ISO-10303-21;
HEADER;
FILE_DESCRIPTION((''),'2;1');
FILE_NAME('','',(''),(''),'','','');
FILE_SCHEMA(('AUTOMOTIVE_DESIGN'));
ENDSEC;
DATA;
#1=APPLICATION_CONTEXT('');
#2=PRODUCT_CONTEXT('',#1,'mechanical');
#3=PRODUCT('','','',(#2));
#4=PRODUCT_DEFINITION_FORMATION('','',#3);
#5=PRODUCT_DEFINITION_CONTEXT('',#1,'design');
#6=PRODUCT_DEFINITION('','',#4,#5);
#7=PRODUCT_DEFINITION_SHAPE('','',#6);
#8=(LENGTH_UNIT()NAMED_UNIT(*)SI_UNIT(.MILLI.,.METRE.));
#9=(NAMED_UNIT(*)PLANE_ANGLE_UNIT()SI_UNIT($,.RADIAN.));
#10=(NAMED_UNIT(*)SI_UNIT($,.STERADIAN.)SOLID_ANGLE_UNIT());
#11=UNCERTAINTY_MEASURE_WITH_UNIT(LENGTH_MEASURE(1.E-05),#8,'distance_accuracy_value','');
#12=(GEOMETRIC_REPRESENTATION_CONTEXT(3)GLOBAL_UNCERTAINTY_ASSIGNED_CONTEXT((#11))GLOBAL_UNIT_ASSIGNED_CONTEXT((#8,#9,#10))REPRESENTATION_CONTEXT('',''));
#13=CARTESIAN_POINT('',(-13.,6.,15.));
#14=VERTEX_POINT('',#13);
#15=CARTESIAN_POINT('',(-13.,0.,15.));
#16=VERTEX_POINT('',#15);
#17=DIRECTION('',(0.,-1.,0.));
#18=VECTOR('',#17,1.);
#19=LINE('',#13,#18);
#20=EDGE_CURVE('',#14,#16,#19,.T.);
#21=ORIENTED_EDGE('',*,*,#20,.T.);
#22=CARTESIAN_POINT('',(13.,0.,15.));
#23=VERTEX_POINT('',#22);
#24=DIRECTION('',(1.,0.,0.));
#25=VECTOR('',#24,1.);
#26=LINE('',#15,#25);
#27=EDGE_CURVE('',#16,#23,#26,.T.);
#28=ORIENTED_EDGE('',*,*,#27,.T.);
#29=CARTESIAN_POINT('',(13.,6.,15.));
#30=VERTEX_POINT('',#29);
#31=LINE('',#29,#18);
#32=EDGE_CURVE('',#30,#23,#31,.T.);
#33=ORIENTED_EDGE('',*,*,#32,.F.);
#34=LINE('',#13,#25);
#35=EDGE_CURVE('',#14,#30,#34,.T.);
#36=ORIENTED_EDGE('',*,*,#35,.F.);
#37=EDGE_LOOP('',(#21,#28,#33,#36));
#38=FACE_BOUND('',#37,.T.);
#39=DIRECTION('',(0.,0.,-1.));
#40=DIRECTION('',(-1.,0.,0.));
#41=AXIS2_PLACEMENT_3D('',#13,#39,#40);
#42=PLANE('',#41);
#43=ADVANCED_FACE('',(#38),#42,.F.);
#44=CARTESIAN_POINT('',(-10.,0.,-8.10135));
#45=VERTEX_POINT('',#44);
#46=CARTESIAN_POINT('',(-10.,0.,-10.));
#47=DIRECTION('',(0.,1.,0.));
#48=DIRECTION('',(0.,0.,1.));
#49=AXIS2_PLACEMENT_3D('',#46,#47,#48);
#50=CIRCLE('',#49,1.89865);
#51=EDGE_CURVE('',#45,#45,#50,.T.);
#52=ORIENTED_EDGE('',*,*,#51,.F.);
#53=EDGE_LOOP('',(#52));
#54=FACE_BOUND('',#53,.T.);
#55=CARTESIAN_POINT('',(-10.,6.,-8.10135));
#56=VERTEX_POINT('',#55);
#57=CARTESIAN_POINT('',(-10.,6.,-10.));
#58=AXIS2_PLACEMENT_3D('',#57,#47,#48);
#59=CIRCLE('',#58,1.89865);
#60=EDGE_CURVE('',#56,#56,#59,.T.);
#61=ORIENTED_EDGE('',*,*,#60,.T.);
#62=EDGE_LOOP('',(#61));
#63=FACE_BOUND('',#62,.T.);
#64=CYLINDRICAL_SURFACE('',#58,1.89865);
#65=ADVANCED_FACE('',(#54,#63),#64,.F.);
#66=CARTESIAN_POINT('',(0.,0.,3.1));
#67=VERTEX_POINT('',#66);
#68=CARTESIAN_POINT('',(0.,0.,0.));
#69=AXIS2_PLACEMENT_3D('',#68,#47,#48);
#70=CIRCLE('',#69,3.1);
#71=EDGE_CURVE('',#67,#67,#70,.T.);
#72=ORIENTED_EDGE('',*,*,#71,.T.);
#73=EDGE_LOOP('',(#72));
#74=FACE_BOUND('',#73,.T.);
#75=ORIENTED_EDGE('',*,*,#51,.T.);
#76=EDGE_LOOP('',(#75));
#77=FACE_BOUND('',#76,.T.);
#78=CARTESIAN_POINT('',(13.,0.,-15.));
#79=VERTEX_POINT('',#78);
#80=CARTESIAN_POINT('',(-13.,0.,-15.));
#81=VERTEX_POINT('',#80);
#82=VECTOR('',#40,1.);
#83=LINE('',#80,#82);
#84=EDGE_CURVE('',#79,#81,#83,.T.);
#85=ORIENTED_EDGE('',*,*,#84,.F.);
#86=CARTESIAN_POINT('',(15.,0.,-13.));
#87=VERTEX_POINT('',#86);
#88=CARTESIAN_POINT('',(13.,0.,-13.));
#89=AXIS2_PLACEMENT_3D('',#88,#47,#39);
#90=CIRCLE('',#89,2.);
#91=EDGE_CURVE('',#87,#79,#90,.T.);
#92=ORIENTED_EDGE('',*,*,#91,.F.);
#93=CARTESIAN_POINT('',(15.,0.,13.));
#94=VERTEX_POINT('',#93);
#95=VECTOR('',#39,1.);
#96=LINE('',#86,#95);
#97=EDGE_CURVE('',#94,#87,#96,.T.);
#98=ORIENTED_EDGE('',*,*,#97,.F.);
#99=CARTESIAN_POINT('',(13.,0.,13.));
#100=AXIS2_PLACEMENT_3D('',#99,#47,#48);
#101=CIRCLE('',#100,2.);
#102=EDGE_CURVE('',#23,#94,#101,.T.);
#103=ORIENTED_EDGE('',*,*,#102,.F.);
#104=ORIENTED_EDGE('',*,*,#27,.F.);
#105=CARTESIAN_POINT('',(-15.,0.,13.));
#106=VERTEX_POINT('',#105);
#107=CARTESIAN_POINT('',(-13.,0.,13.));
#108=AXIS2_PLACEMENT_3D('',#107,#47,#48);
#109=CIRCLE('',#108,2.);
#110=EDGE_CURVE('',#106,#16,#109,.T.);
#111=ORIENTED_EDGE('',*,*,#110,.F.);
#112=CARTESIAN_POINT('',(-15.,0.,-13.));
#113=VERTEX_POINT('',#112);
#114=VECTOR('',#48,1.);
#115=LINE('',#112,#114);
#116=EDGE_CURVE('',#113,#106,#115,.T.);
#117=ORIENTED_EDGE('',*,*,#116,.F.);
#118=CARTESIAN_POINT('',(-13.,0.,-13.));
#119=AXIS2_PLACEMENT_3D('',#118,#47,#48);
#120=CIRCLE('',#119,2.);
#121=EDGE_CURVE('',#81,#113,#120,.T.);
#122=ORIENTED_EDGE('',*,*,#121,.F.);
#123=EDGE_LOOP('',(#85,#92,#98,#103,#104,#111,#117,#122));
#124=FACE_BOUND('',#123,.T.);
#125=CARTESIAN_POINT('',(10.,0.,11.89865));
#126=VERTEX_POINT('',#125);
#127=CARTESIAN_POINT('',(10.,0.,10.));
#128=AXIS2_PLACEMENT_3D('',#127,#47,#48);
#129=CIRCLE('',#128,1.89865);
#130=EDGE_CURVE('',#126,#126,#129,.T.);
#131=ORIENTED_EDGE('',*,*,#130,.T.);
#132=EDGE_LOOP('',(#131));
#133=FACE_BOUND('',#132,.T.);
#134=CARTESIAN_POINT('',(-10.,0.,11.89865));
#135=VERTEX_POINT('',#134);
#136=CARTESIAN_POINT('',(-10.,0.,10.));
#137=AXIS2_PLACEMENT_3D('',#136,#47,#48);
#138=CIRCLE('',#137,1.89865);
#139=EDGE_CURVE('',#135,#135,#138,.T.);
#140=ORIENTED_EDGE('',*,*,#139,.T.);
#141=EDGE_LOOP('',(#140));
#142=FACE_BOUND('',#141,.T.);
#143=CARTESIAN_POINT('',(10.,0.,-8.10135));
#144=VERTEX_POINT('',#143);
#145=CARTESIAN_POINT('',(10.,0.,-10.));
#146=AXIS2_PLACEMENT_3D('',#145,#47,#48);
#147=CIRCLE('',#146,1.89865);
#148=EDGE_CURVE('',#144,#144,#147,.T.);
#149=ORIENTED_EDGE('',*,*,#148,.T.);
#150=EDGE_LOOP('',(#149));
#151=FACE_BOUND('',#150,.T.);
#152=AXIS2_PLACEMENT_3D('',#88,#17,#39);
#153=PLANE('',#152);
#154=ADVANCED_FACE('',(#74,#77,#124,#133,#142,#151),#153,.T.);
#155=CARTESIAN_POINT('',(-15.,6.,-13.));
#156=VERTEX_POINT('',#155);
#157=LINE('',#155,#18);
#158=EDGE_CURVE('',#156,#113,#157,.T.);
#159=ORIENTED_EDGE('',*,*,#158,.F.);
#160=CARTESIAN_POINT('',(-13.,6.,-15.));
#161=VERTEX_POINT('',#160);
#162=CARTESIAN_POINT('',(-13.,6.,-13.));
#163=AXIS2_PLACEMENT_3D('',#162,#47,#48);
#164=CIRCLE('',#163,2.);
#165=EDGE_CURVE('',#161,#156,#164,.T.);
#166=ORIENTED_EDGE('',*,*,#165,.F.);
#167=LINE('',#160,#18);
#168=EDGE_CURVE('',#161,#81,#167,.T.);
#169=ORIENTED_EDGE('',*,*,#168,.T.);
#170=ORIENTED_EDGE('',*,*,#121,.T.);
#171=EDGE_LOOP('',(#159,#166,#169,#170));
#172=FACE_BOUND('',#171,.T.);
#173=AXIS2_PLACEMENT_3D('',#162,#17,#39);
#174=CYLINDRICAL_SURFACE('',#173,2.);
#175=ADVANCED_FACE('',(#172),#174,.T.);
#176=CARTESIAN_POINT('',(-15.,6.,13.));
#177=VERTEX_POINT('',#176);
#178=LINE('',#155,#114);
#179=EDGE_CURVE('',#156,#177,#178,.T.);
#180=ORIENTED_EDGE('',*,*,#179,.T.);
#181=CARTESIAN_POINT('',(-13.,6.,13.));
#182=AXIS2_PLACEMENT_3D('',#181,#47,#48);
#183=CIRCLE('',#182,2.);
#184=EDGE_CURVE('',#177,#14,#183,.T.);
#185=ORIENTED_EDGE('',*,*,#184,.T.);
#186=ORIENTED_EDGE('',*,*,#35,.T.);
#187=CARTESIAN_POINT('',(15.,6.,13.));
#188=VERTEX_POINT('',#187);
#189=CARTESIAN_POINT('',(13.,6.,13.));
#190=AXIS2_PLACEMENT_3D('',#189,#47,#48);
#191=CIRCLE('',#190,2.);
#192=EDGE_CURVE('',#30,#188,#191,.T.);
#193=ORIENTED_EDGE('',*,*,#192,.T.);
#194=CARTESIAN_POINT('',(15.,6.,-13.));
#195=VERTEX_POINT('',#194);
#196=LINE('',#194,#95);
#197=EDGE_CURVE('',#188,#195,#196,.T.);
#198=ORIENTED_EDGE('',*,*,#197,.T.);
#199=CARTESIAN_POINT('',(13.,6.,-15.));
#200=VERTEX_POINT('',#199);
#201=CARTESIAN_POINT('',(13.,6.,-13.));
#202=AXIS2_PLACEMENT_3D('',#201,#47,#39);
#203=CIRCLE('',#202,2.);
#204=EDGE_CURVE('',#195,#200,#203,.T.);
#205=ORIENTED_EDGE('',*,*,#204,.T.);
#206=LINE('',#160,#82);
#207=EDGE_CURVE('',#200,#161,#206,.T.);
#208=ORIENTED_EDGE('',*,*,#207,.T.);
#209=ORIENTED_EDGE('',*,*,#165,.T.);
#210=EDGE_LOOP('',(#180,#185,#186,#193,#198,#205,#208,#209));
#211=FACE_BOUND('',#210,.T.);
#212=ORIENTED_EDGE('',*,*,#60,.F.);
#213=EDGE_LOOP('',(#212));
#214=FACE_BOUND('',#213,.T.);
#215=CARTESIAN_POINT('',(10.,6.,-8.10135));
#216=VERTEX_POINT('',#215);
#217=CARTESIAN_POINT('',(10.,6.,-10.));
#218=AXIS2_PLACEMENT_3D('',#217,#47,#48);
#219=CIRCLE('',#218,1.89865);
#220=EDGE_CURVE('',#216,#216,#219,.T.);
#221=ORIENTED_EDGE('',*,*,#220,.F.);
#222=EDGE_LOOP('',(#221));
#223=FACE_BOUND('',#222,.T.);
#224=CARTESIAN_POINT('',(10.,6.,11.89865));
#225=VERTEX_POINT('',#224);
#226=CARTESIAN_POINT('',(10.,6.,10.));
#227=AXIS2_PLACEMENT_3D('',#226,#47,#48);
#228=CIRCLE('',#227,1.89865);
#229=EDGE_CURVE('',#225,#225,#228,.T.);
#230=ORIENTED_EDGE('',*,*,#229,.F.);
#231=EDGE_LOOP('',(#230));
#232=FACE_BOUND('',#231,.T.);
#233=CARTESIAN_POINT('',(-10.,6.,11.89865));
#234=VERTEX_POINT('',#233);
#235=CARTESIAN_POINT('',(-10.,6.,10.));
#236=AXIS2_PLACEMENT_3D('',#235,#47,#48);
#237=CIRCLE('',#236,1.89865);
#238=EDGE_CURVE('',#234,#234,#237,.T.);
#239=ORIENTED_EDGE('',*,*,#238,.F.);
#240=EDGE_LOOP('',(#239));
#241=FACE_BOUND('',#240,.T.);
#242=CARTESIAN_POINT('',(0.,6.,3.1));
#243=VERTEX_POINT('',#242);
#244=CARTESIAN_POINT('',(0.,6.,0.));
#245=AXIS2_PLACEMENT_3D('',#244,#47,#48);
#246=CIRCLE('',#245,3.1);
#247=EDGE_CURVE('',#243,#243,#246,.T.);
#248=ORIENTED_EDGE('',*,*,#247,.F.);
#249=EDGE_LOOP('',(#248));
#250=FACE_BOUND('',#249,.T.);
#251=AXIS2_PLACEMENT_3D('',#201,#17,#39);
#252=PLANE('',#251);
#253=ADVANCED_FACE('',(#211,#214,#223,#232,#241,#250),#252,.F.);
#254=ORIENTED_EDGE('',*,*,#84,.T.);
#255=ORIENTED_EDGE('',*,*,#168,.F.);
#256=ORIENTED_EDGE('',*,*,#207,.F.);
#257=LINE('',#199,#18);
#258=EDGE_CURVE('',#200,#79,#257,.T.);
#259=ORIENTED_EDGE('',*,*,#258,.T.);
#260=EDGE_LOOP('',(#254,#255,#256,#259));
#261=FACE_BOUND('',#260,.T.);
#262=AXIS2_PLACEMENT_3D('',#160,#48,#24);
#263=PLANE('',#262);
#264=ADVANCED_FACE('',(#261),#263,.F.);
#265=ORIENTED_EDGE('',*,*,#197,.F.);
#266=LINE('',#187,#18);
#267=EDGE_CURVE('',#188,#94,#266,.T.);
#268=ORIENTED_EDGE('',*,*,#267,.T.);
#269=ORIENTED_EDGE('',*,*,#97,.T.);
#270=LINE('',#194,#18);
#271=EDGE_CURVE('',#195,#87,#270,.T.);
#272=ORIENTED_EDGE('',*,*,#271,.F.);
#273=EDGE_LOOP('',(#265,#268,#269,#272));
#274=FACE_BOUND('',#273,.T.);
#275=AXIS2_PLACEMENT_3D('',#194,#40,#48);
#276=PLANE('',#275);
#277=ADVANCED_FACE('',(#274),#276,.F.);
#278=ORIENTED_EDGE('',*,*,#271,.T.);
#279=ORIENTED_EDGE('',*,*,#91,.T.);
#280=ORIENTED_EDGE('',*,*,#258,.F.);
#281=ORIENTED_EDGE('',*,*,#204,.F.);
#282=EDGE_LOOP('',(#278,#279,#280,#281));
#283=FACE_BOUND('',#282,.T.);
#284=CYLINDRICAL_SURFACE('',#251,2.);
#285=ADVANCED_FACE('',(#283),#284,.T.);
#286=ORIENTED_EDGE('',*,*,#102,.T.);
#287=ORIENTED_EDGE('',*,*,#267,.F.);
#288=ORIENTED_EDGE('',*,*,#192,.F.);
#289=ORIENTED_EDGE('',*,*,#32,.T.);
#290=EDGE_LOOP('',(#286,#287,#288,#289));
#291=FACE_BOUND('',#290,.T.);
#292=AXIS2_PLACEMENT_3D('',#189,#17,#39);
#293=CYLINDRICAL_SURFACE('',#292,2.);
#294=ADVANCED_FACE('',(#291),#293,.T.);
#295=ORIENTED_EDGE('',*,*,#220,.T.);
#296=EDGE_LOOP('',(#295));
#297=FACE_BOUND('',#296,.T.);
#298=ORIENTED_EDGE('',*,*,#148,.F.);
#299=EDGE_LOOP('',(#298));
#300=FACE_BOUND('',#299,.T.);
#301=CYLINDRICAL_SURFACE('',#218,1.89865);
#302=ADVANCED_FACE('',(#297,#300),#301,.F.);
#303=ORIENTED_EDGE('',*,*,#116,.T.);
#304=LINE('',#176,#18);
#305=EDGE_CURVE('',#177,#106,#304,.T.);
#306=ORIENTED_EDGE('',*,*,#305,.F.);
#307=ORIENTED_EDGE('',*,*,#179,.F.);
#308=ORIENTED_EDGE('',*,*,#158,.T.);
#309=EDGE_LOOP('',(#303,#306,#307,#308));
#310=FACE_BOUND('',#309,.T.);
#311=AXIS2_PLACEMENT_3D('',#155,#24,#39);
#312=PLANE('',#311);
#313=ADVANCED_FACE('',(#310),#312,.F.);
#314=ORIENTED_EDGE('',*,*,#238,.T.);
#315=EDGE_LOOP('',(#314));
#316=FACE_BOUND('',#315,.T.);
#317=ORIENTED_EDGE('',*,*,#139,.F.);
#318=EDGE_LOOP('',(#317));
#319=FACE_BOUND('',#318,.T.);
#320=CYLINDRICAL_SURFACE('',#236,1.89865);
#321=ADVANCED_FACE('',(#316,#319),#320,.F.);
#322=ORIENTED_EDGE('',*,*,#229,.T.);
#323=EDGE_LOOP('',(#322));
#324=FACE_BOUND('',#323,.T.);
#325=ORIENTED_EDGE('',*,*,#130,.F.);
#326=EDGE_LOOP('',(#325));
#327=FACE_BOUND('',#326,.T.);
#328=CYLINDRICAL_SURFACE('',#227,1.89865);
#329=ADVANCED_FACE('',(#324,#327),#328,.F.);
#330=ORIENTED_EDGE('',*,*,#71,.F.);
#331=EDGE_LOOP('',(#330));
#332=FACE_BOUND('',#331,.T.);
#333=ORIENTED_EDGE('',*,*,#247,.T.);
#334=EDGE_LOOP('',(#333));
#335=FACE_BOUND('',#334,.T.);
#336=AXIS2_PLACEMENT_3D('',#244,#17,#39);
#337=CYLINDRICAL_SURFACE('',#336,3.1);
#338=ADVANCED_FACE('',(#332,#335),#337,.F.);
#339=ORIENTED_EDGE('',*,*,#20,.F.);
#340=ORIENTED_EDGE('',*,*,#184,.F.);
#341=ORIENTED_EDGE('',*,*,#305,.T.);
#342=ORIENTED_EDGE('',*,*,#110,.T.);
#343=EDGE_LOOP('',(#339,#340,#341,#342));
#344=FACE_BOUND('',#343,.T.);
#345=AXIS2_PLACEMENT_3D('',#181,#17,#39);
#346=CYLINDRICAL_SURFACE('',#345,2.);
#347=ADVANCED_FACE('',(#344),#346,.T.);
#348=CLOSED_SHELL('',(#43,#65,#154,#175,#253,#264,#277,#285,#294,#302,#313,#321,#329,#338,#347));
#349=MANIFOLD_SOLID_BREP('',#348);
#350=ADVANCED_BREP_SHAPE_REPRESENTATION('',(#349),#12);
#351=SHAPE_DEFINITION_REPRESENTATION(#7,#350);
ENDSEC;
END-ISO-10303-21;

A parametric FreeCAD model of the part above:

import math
import FreeCAD as App
import Part
import Sketcher

doc = App.newDocument("Part")
body = doc.addObject("PartDesign::Body", "Body")

# Sketch on XZ plane
sketch1 = body.newObject("Sketcher::SketchObject", "Sketch")
sketch1.AttachmentSupport = (doc.getObject("XZ_Plane"), [""])
sketch1.MapMode = "FlatFace"
sketch1.addGeometry(Part.LineSegment(App.Vector(13, -15, 0), App.Vector(-13, -15, 0)), False)
sketch1.addGeometry(Part.ArcOfCircle(Part.Circle(App.Vector(-13, -13, 0), App.Vector(0, 0, 1), 2), math.radians(-180), math.radians(-90)), False)
sketch1.addGeometry(Part.LineSegment(App.Vector(-15, -13, 0), App.Vector(-15, 13, 0)), False)
sketch1.addGeometry(Part.ArcOfCircle(Part.Circle(App.Vector(-13, 13, 0), App.Vector(0, 0, 1), 2), math.radians(90), math.radians(180)), False)
sketch1.addGeometry(Part.LineSegment(App.Vector(-13, 15, 0), App.Vector(13, 15, 0)), False)
sketch1.addGeometry(Part.ArcOfCircle(Part.Circle(App.Vector(13, 13, 0), App.Vector(0, 0, 1), 2), math.radians(0), math.radians(90)), False)
sketch1.addGeometry(Part.LineSegment(App.Vector(15, 13, 0), App.Vector(15, -13, 0)), False)
sketch1.addGeometry(Part.ArcOfCircle(Part.Circle(App.Vector(13, -13, 0), App.Vector(0, 0, 1), 2), math.radians(-90), math.radians(0)), False)
sketch1.addGeometry(Part.Circle(App.Vector(0, 0, 0), App.Vector(0, 0, 1), 3.1), False)
sketch1.addConstraint(Sketcher.Constraint("Tangent", 0, 2, 1, 2))
sketch1.addConstraint(Sketcher.Constraint("Tangent", 1, 1, 2, 1))
sketch1.addConstraint(Sketcher.Constraint("Tangent", 2, 2, 3, 2))
sketch1.addConstraint(Sketcher.Constraint("Tangent", 3, 1, 4, 1))
sketch1.addConstraint(Sketcher.Constraint("Tangent", 4, 2, 5, 2))
sketch1.addConstraint(Sketcher.Constraint("Tangent", 5, 1, 6, 1))
sketch1.addConstraint(Sketcher.Constraint("Tangent", 6, 2, 7, 2))
sketch1.addConstraint(Sketcher.Constraint("Tangent", 7, 1, 0, 1))
sketch1.addConstraint(Sketcher.Constraint("Horizontal", 0))
sketch1.addConstraint(Sketcher.Constraint("Vertical", 2))
sketch1.addConstraint(Sketcher.Constraint("Horizontal", 4))
sketch1.addConstraint(Sketcher.Constraint("Vertical", 6))
sketch1.addConstraint(Sketcher.Constraint("Coincident", 8, 3, -1, 1))
sketch1.addConstraint(Sketcher.Constraint("Equal", 1, 3))
sketch1.addConstraint(Sketcher.Constraint("Equal", 3, 5))
sketch1.addConstraint(Sketcher.Constraint("Equal", 5, 7))
sketch1.addConstraint(Sketcher.Constraint("Symmetric", 1, 3, 5, 3, -1, 1))
sketch1.addConstraint(Sketcher.Constraint("Equal", 4, 2))
sketch1.addConstraint(Sketcher.Constraint("Radius", 1, 2.0))
sketch1.addConstraint(Sketcher.Constraint("Diameter", 8, 6.2))
sketch1.addConstraint(Sketcher.Constraint("DistanceX", 0, 2, 0, 1, 26.0))
pad1 = body.newObject("PartDesign::Pad", "Pad")
pad1.Profile = sketch1
pad1.Length = 6
pad1.Reversed = True

# Sketch on XZ plane
sketch2 = body.newObject("Sketcher::SketchObject", "Sketch001")
sketch2.AttachmentSupport = (doc.getObject("XZ_Plane"), [""])
sketch2.MapMode = "FlatFace"
sketch2.AttachmentOffset = App.Placement(App.Vector(0, 0, -6), App.Rotation())
sketch2.addGeometry(Part.Circle(App.Vector(-10, -10, 0), App.Vector(0, 0, 1), 1.89865), False)
sketch2.addGeometry(Part.Circle(App.Vector(10, -10, 0), App.Vector(0, 0, 1), 1.89865), False)
sketch2.addGeometry(Part.Circle(App.Vector(-10, 10, 0), App.Vector(0, 0, 1), 1.89865), False)
sketch2.addGeometry(Part.Circle(App.Vector(10, 10, 0), App.Vector(0, 0, 1), 1.89865), False)
sketch2.addConstraint(Sketcher.Constraint("Equal", 0, 1))
sketch2.addConstraint(Sketcher.Constraint("Equal", 1, 2))
sketch2.addConstraint(Sketcher.Constraint("Equal", 2, 3))
sketch2.addConstraint(Sketcher.Constraint("Symmetric", 1, 3, 2, 3, -1, 1))
sketch2.addConstraint(Sketcher.Constraint("Symmetric", 0, 3, 3, 3, -1, 1))
sketch2.addConstraint(Sketcher.Constraint("Symmetric", 0, 3, 1, 3, -2))
sketch2.addConstraint(Sketcher.Constraint("DistanceX", 0, 3, -1, 1, 10.0))
sketch2.addConstraint(Sketcher.Constraint("DistanceY", 0, 3, -1, 1, 10.0))
sketch2.addConstraint(Sketcher.Constraint("Diameter", 0, 3.7973))
doc.recompute()
hole = body.newObject("PartDesign::Hole", "Hole")
hole.Profile = sketch2
hole.ThreadType = "None"
hole.Diameter = 3.7973
hole.DepthType = "ThroughAll"
hole.Reversed = True

doc.recompute()
